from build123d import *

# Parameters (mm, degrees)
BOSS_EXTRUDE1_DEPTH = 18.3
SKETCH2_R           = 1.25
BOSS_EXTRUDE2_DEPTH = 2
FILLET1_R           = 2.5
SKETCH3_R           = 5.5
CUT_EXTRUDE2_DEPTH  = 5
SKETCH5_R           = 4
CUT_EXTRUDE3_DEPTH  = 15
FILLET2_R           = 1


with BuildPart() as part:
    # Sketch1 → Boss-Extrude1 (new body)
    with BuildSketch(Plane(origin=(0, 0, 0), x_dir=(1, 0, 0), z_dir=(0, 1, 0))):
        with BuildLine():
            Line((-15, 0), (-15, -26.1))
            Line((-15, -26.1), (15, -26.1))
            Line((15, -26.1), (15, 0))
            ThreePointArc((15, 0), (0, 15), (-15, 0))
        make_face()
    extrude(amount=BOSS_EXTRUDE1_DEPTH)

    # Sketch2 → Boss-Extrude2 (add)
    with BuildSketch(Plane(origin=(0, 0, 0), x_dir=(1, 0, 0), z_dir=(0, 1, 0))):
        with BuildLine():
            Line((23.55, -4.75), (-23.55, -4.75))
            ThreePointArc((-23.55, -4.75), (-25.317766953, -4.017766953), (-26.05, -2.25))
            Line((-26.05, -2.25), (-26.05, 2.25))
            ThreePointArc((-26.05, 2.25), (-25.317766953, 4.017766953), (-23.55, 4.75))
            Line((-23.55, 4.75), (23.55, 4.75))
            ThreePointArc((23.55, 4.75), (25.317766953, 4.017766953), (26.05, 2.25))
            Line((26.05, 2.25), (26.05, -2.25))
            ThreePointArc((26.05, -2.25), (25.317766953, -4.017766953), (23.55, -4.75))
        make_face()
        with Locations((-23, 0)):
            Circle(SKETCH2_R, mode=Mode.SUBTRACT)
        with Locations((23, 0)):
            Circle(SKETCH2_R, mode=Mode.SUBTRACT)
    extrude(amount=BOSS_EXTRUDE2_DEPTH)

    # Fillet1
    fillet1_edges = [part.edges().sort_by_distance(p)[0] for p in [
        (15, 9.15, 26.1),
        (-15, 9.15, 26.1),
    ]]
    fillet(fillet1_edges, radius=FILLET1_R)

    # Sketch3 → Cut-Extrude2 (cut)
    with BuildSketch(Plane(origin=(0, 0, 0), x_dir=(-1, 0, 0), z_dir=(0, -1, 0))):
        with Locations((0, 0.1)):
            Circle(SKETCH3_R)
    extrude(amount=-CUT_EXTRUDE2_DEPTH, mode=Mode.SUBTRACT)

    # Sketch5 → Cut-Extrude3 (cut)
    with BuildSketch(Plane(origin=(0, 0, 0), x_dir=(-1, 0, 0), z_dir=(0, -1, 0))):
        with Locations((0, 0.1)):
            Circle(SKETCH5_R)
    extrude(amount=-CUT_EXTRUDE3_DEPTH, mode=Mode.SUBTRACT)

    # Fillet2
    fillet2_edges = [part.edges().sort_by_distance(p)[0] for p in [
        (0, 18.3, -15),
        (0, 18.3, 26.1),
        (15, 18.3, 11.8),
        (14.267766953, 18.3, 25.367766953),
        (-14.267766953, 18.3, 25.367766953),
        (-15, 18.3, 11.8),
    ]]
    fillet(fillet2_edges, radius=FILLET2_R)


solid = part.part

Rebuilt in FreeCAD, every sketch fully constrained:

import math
import FreeCAD as App
import Part
import Sketcher
from FreeCAD import Vector


def edges_at(feature, points):
    """Names of the edges that pass closest to the given points."""
    edges = feature.Shape.Edges
    near = lambda p: min(range(len(edges)), key=lambda i: edges[i].distToShape(Part.Vertex(*p))[0])
    return sorted({f"Edge{near(p) + 1}" for p in points})

doc = App.newDocument("Part")
params = doc.addObject("Spreadsheet::Sheet", "Params")
for row, (alias, value) in enumerate([
    ("sketch1_radius", "15 mm"),
    ("sketch1_height", "26.1 mm"),
    ("pad1_length", "18.3 mm"),
    ("sketch2_diameter", "2.5 mm"),
    ("sketch2_radius", "2.5 mm"),
    ("sketch2_width", "47.1 mm"),
    ("sketch2_height", "4.5 mm"),
    ("pad2_length", "2 mm"),
    ("fillet_radius", "2.5 mm"),
    ("sketch3_diameter", "11 mm"),
    ("pocket1_length", "5 mm"),
    ("sketch4_diameter", "8 mm"),
    ("pocket2_length", "15 mm"),
    ("fillet2_radius", "1 mm"),
], start=1):
    params.set(f"A{row}", alias)
    params.set(f"B{row}", "=" + value)
    params.setAlias(f"B{row}", alias)

body = doc.addObject("PartDesign::Body", "Body")

sketch1 = body.newObject("Sketcher::SketchObject", "Sketch")
sketch1.AttachmentSupport = (doc.getObject("XZ_Plane"), [""])
sketch1.MapMode = "FlatFace"
sketch1.addGeometry([
    Part.LineSegment(Vector(-15, 0, 0), Vector(-15, 26.1, 0)),
    Part.LineSegment(Vector(-15, 26.1, 0), Vector(15, 26.1, 0)),
    Part.LineSegment(Vector(15, 26.1, 0), Vector(15, 0, 0)),
    Part.ArcOfCircle(Part.Circle(Vector(0, 0, 0), Vector(0, 0, 1), 15), math.radians(180), math.radians(360)),
], False)
sketch1.addConstraint([
    Sketcher.Constraint("Coincident", 0, 2, 1, 1),
    Sketcher.Constraint("Coincident", 1, 2, 2, 1),
    Sketcher.Constraint("Tangent", 2, 2, 3, 2),
    Sketcher.Constraint("Tangent", 3, 1, 0, 1),
    Sketcher.Constraint("Vertical", 0),
    Sketcher.Constraint("Horizontal", 1),
    Sketcher.Constraint("Vertical", 2),
    Sketcher.Constraint("Coincident", 3, 3, -1, 1),
    Sketcher.Constraint("Radius", 3, 15.0),
    Sketcher.Constraint("DistanceY", 0, 1, 0, 2, 26.1),
])
sketch1.setExpression("Constraints[8]", "Params.sketch1_radius")
sketch1.setExpression("Constraints[9]", "Params.sketch1_height")
pad1 = body.newObject("PartDesign::Pad", "Pad")
pad1.Profile = sketch1
pad1.setExpression("Length", "Params.pad1_length")
pad1.Reversed = True

sketch2 = body.newObject("Sketcher::SketchObject", "Sketch001")
sketch2.AttachmentSupport = (doc.getObject("XZ_Plane"), [""])
sketch2.MapMode = "FlatFace"
sketch2.addGeometry([
    Part.LineSegment(Vector(-23.55, 4.75, 0), Vector(23.55, 4.75, 0)),
    Part.ArcOfCircle(Part.Circle(Vector(23.55, 2.25, 0), Vector(0, 0, 1), 2.5), math.radians(0), math.radians(90)),
    Part.LineSegment(Vector(26.05, 2.25, 0), Vector(26.05, -2.25, 0)),
    Part.ArcOfCircle(Part.Circle(Vector(23.55, -2.25, 0), Vector(0, 0, 1), 2.5), math.radians(-90), math.radians(0)),
    Part.LineSegment(Vector(23.55, -4.75, 0), Vector(-23.55, -4.75, 0)),
    Part.ArcOfCircle(Part.Circle(Vector(-23.55, -2.25, 0), Vector(0, 0, 1), 2.5), math.radians(180), math.radians(270)),
    Part.LineSegment(Vector(-26.05, -2.25, 0), Vector(-26.05, 2.25, 0)),
    Part.ArcOfCircle(Part.Circle(Vector(-23.55, 2.25, 0), Vector(0, 0, 1), 2.5), math.radians(90), math.radians(180)),
    Part.Circle(Vector(23, 0, 0), Vector(0, 0, 1), 1.25),
    Part.Circle(Vector(-23, 0, 0), Vector(0, 0, 1), 1.25),
], False)
sketch2.addConstraint([
    Sketcher.Constraint("Tangent", 0, 2, 1, 2),
    Sketcher.Constraint("Tangent", 1, 1, 2, 1),
    Sketcher.Constraint("Tangent", 2, 2, 3, 2),
    Sketcher.Constraint("Tangent", 3, 1, 4, 1),
    Sketcher.Constraint("Tangent", 4, 2, 5, 2),
    Sketcher.Constraint("Tangent", 5, 1, 6, 1),
    Sketcher.Constraint("Tangent", 6, 2, 7, 2),
    Sketcher.Constraint("Tangent", 7, 1, 0, 1),
    Sketcher.Constraint("Horizontal", 0),
    Sketcher.Constraint("Vertical", 2),
    Sketcher.Constraint("Horizontal", 4),
    Sketcher.Constraint("Vertical", 6),
    Sketcher.Constraint("Equal", 1, 3),
    Sketcher.Constraint("Equal", 3, 5),
    Sketcher.Constraint("Equal", 5, 7),
    Sketcher.Constraint("Equal", 8, 9),
    Sketcher.Constraint("Symmetric", 1, 3, 5, 3, -1, 1),
    Sketcher.Constraint("Symmetric", 8, 3, 9, 3, -1, 1),
    Sketcher.Constraint("PointOnObject", 8, 3, -1),
    Sketcher.Constraint("Diameter", 8, 2.5),
    Sketcher.Constraint("Radius", 1, 2.5),
    Sketcher.Constraint("DistanceX", 0, 1, 0, 2, 47.1),
    Sketcher.Constraint("DistanceY", 2, 2, 2, 1, 4.5),
    Sketcher.Constraint("DistanceX", -1, 1, 8, 3, 23.0),
])
sketch2.setExpression("Constraints[19]", "Params.sketch2_diameter")
sketch2.setExpression("Constraints[20]", "Params.sketch2_radius")
sketch2.setExpression("Constraints[21]", "Params.sketch2_width")
sketch2.setExpression("Constraints[22]", "Params.sketch2_height")
pad2 = body.newObject("PartDesign::Pad", "Pad001")
pad2.Profile = sketch2
pad2.setExpression("Length", "Params.pad2_length")
pad2.Reversed = True
doc.recompute()

fillet = body.newObject("PartDesign::Fillet", "Fillet")
fillet.Base = (pad2, edges_at(pad2, [(15, 9.15, 26.1), (-15, 9.15, 26.1)]))
fillet.setExpression("Radius", "Params.fillet_radius")

sketch3 = body.newObject("Sketcher::SketchObject", "Sketch002")
sketch3.AttachmentSupport = (doc.getObject("XZ_Plane"), [""])
sketch3.MapMode = "FlatFace"
sketch3.addGeometry(Part.Circle(Vector(0, -0.1, 0), Vector(0, 0, 1), 5.5), False)
sketch3.addConstraint([
    Sketcher.Constraint("PointOnObject", 0, 3, -2),
    Sketcher.Constraint("Diameter", 0, 11.0),
    Sketcher.Constraint("DistanceY", 0, 3, -1, 1, 0.1),
])
sketch3.setExpression("Constraints[1]", "Params.sketch3_diameter")
pocket1 = body.newObject("PartDesign::Pocket", "Pocket")
pocket1.Profile = sketch3
pocket1.setExpression("Length", "Params.pocket1_length")

sketch4 = body.newObject("Sketcher::SketchObject", "Sketch003")
sketch4.AttachmentSupport = (doc.getObject("XZ_Plane"), [""])
sketch4.MapMode = "FlatFace"
sketch4.addGeometry(Part.Circle(Vector(0, -0.1, 0), Vector(0, 0, 1), 4), False)
sketch4.addConstraint([
    Sketcher.Constraint("PointOnObject", 0, 3, -2),
    Sketcher.Constraint("Diameter", 0, 8.0),
    Sketcher.Constraint("DistanceY", 0, 3, -1, 1, 0.1),
])
sketch4.setExpression("Constraints[1]", "Params.sketch4_diameter")
pocket2 = body.newObject("PartDesign::Pocket", "Pocket001")
pocket2.Profile = sketch4
pocket2.setExpression("Length", "Params.pocket2_length")
doc.recompute()

fillet2 = body.newObject("PartDesign::Fillet", "Fillet001")
fillet2.Base = (pocket2, edges_at(pocket2, [
    (0, 18.3, -15),
    (0, 18.3, 26.1),
    (15, 18.3, 11.8),
    (14.268, 18.3, 25.368),
    (-14.268, 18.3, 25.368),
    (-15, 18.3, 11.8),
]))
fillet2.setExpression("Radius", "Params.fillet2_radius")

doc.recompute()
